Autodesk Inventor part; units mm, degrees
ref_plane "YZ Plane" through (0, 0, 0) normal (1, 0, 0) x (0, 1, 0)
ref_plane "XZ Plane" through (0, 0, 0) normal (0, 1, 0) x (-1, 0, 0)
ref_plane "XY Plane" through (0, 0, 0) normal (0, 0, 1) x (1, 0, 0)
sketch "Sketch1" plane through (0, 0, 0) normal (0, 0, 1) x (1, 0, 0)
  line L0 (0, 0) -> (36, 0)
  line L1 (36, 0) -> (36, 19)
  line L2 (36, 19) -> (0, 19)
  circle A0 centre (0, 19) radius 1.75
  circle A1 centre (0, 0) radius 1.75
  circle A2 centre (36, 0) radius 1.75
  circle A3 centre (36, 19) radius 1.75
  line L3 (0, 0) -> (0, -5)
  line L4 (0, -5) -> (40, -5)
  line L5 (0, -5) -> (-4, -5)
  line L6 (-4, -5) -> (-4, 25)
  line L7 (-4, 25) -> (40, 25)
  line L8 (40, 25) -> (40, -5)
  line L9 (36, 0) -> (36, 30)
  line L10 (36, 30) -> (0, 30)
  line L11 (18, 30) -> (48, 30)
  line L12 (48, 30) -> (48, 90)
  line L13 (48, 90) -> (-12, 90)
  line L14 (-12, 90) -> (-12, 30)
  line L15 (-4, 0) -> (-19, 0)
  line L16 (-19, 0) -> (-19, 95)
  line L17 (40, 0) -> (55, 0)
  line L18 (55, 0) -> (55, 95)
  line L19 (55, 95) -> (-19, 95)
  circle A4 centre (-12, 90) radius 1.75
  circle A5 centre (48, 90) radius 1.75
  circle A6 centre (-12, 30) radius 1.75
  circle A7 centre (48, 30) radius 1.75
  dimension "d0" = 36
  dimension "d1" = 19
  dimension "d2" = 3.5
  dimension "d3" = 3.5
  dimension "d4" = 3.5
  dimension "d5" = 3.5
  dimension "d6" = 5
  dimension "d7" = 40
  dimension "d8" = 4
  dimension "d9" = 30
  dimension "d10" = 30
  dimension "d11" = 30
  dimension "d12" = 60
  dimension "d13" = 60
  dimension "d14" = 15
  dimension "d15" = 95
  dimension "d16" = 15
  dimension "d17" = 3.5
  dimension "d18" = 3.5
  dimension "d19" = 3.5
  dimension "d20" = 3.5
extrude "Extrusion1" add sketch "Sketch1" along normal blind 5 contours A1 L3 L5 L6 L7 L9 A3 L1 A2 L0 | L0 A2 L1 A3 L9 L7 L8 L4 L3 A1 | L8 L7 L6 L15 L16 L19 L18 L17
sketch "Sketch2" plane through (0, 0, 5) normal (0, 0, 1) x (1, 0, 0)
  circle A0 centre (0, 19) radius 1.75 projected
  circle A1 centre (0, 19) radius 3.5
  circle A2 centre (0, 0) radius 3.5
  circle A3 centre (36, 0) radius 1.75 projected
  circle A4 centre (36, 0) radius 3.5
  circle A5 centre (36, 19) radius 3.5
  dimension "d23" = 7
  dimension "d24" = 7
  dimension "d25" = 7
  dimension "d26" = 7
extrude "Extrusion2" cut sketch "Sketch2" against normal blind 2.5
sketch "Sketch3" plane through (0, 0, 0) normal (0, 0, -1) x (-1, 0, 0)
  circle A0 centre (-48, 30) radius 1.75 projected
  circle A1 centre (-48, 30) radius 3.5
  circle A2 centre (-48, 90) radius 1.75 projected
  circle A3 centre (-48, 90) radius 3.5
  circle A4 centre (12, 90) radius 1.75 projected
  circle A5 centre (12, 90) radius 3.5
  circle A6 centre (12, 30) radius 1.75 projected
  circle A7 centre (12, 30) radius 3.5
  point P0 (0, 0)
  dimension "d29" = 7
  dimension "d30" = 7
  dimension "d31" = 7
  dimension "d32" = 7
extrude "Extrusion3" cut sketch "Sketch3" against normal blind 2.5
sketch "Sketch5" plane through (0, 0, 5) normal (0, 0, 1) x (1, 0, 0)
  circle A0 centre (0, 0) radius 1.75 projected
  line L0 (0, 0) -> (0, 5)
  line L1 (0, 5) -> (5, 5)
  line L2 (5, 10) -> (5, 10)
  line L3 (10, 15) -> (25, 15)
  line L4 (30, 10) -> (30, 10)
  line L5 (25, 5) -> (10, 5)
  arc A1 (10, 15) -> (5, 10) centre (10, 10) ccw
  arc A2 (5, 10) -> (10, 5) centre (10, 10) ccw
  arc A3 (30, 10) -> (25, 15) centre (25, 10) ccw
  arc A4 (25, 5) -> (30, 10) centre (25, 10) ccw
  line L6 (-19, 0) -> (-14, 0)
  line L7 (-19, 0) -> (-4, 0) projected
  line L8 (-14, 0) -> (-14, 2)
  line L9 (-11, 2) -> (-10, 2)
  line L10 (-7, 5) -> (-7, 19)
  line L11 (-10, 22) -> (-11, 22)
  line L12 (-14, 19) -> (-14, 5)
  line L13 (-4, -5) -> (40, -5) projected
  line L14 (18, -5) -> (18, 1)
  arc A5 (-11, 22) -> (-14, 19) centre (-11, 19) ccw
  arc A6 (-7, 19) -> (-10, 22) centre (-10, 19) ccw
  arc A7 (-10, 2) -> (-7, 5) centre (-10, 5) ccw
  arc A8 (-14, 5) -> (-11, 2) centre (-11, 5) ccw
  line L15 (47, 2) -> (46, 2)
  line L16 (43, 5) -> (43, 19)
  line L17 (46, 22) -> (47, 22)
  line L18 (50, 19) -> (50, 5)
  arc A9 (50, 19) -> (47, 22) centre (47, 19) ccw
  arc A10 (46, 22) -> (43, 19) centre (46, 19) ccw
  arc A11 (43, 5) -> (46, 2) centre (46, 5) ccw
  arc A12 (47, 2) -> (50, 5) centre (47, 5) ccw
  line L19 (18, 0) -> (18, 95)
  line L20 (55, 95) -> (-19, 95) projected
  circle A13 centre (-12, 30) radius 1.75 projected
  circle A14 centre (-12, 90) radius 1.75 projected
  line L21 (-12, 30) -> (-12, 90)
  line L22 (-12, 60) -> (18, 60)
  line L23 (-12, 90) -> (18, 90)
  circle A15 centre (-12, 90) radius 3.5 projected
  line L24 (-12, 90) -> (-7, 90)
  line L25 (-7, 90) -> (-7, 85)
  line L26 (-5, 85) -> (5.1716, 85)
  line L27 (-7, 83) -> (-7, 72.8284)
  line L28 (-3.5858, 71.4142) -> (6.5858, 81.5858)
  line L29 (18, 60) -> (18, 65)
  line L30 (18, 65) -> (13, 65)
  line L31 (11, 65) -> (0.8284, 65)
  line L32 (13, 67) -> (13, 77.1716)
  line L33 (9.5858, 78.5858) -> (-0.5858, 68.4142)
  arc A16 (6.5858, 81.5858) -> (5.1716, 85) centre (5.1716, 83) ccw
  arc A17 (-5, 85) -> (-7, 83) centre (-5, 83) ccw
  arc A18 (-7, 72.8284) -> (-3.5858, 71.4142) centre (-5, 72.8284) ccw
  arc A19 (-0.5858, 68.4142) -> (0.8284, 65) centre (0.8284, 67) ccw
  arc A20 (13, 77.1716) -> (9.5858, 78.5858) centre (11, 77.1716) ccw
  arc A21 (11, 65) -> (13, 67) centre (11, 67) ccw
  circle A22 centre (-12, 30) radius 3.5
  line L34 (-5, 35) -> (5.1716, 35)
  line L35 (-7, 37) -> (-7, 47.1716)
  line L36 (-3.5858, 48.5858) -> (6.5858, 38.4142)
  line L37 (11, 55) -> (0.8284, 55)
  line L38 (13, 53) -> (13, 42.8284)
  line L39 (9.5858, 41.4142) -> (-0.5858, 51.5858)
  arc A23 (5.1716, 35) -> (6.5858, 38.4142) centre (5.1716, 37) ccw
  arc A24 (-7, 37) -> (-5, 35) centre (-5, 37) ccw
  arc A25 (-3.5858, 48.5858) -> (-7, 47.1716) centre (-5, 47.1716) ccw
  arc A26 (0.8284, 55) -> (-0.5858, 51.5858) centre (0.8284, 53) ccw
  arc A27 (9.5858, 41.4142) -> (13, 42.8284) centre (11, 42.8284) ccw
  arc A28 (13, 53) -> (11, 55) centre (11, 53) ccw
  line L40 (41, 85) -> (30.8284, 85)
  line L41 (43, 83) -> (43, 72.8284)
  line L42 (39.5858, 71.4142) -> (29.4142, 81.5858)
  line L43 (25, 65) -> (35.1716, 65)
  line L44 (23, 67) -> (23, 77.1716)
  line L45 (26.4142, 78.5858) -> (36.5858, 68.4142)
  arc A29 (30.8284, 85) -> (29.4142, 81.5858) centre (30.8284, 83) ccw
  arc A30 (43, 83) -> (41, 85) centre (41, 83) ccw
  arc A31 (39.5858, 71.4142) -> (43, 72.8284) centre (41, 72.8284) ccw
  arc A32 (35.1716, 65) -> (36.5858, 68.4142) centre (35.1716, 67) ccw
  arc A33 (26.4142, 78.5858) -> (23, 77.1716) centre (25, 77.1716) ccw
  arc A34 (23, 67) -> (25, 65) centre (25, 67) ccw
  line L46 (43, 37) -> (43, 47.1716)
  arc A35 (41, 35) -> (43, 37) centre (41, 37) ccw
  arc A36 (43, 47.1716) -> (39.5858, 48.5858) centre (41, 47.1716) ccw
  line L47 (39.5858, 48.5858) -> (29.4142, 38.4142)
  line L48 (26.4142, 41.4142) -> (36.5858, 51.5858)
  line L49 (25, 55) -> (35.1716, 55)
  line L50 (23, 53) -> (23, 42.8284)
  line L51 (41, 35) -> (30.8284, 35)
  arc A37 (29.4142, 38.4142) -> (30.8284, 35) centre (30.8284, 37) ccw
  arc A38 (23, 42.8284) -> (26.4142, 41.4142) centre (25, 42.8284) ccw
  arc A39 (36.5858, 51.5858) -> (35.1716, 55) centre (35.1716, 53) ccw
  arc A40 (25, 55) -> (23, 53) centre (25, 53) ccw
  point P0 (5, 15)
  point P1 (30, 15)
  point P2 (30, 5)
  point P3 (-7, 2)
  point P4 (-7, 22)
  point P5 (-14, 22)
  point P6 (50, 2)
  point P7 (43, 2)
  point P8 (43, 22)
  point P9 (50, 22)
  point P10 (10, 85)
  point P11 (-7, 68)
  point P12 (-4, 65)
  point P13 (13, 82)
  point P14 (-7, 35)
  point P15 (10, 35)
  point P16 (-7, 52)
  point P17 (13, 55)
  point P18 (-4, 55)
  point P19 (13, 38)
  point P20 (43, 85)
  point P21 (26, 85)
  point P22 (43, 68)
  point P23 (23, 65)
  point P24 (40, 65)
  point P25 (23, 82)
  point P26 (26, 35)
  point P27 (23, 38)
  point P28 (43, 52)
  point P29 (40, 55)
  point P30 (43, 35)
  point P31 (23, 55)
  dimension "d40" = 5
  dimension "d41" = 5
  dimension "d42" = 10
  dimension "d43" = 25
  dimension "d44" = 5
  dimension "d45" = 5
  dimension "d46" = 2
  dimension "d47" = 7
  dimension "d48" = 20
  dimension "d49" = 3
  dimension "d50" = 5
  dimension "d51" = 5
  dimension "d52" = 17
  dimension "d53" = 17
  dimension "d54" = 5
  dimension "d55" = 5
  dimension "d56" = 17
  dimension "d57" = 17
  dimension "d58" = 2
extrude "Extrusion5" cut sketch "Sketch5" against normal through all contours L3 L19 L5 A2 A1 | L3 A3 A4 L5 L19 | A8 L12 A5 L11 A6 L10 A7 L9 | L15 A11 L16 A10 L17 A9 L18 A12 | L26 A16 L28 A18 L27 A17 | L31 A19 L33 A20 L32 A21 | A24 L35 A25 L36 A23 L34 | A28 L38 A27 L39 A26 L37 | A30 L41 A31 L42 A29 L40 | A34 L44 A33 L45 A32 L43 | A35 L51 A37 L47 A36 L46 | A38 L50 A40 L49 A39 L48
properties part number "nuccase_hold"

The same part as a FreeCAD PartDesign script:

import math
import FreeCAD as App
import Part
import Sketcher

V = App.Vector


def add_polygon(sketch, points):
    """Adds a closed chain of lines whose ends are joined by coincident constraints."""
    first, n = sketch.GeometryCount, len(points)
    for a, b in zip(points, points[1:] + points[:1]):
        sketch.addGeometry(Part.LineSegment(App.Vector(*a, 0), App.Vector(*b, 0)), False)
    for i in range(n):
        sketch.addConstraint(Sketcher.Constraint("Coincident", first + i, 2, first + (i + 1) % n, 1))

doc = App.newDocument("Part")
body = doc.addObject("PartDesign::Body", "Body")

# Sketch on XY plane
sketch1 = body.newObject("Sketcher::SketchObject", "Sketch")
sketch1.AttachmentSupport = (doc.getObject("XY_Plane"), [""])
sketch1.MapMode = "FlatFace"
add_polygon(sketch1, [(-4, -5), (40, -5), (40, 0), (55, 0), (55, 95), (-19, 95), (-19, 0), (-4, 0)])  # lines 0-7
sketch1.addGeometry(Part.Circle(V(0, 0, 0), V(0, 0, 1), 1.75), False)  # 8
sketch1.addGeometry(Part.Circle(V(36, 19, 0), V(0, 0, 1), 1.75), False)  # 9
sketch1.addGeometry(Part.Circle(V(36, 0, 0), V(0, 0, 1), 1.75), False)  # 10
sketch1.addGeometry(Part.Circle(V(0, 19, 0), V(0, 0, 1), 1.75), False)  # 11
sketch1.addGeometry(Part.Circle(V(-12, 30, 0), V(0, 0, 1), 1.75), False)  # 12
sketch1.addGeometry(Part.ArcOfCircle(Part.Circle(V(48, 30, 0), V(0, 0, 1), 1.75), math.radians(90), math.radians(180)), False)  # 13
sketch1.addGeometry(Part.ArcOfCircle(Part.Circle(V(48, 30, 0), V(0, 0, 1), 1.75), math.radians(180), math.radians(450)), False)  # 14
sketch1.addGeometry(Part.ArcOfCircle(Part.Circle(V(-12, 90, 0), V(0, 0, 1), 1.75), math.radians(0), math.radians(270)), False)  # 15
sketch1.addGeometry(Part.ArcOfCircle(Part.Circle(V(-12, 90, 0), V(0, 0, 1), 1.75), math.radians(-90), math.radians(0)), False)  # 16
sketch1.addGeometry(Part.ArcOfCircle(Part.Circle(V(48, 90, 0), V(0, 0, 1), 1.75), math.radians(180), math.radians(270)), False)  # 17
sketch1.addGeometry(Part.ArcOfCircle(Part.Circle(V(48, 90, 0), V(0, 0, 1), 1.75), math.radians(-90), math.radians(180)), False)  # 18
sketch1.addConstraint([
    Sketcher.Constraint("Tangent", 13, 1, 14, 2),
    Sketcher.Constraint("Coincident", 14, 1, 13, 2),
    Sketcher.Constraint("Tangent", 15, 1, 16, 2),
    Sketcher.Constraint("Coincident", 16, 1, 15, 2),
    Sketcher.Constraint("Tangent", 17, 1, 18, 2),
    Sketcher.Constraint("Coincident", 18, 1, 17, 2),
    Sketcher.Constraint("Horizontal", 0),
    Sketcher.Constraint("Vertical", 1),
    Sketcher.Constraint("Horizontal", 2),
    Sketcher.Constraint("Vertical", 3),
    Sketcher.Constraint("Horizontal", 4),
    Sketcher.Constraint("Vertical", 5),
    Sketcher.Constraint("Horizontal", 6),
    Sketcher.Constraint("Vertical", 7),
    Sketcher.Constraint("Coincident", 8, 3, -1, 1),
    Sketcher.Constraint("Equal", 8, 9),
    Sketcher.Constraint("Equal", 9, 10),
    Sketcher.Constraint("Equal", 10, 11),
    Sketcher.Constraint("Equal", 11, 12),
    Sketcher.Constraint("Equal", 12, 13),
    Sketcher.Constraint("Equal", 14, 15),
    Sketcher.Constraint("Equal", 16, 17),
    Sketcher.Constraint("PointOnObject", 10, 3, -1),
    Sketcher.Constraint("PointOnObject", 11, 3, -2),
    Sketcher.Constraint("PointOnObject", 1, 2, -1),
    Sketcher.Constraint("PointOnObject", 5, 2, -1),
    Sketcher.Constraint("Horizontal", 9, 3, 11, 3),
    Sketcher.Constraint("Horizontal", 12, 3, 13, 3),
    Sketcher.Constraint("Horizontal", 16, 3, 17, 3),
    Sketcher.Constraint("Horizontal", 13, 3, 14, 1),
    Sketcher.Constraint("Horizontal", 18, 3, 15, 1),
    Sketcher.Constraint("Horizontal", 15, 1, 17, 1),
    Sketcher.Constraint("Vertical", 9, 3, 10, 3),
    Sketcher.Constraint("Vertical", 12, 3, 15, 3),
    Sketcher.Constraint("Vertical", 14, 3, 17, 3),
    Sketcher.Constraint("Vertical", 18, 3, 13, 1),
    Sketcher.Constraint("Vertical", 15, 3, 16, 1),
    Sketcher.Constraint("Vertical", 13, 1, 18, 1),
    Sketcher.Constraint("Equal", 2, 6),
    Sketcher.Constraint("Diameter", 8, 3.5),
    Sketcher.Constraint("DistanceX", 2, 1, 2, 2, 15.0),
    Sketcher.Constraint("DistanceY", 1, 1, 1, 2, 5.0),
    Sketcher.Constraint("DistanceY", 3, 1, 3, 2, 95.0),
    Sketcher.Constraint("DistanceX", -1, 1, 9, 3, 36.0),
    Sketcher.Constraint("DistanceY", -1, 1, 9, 3, 19.0),
    Sketcher.Constraint("DistanceY", -1, 1, 12, 3, 30.0),
    Sketcher.Constraint("DistanceX", -1, 1, 0, 2, 40.0),
    Sketcher.Constraint("DistanceX", 4, 2, -1, 1, 19.0),
    Sketcher.Constraint("DistanceX", 12, 3, 13, 3, 60.0),
    Sketcher.Constraint("DistanceY", 12, 3, 15, 3, 60.0),
    Sketcher.Constraint("DistanceX", 12, 3, -1, 1, 12.0),
])
pad1 = body.newObject("PartDesign::Pad", "Pad")
pad1.Profile = sketch1
pad1.Length = 5

# Sketch on XY plane
sketch2 = body.newObject("Sketcher::SketchObject", "Sketch001")
sketch2.AttachmentSupport = (doc.getObject("XY_Plane"), [""])
sketch2.MapMode = "FlatFace"
sketch2.AttachmentOffset = App.Placement(V(0, 0, 5), App.Rotation())
sketch2.addGeometry([
    Part.Circle(V(0, 19, 0), V(0, 0, 1), 3.5),  # 0
    Part.Circle(V(0, 19, 0), V(0, 0, 1), 1.75),  # 1
    Part.Circle(V(0, 0, 0), V(0, 0, 1), 3.5),  # 2
    Part.Circle(V(36, 0, 0), V(0, 0, 1), 3.5),  # 3
    Part.Circle(V(36, 0, 0), V(0, 0, 1), 1.75),  # 4
    Part.Circle(V(36, 19, 0), V(0, 0, 1), 3.5),  # 5
], False)
sketch2.addConstraint([
    Sketcher.Constraint("Coincident", 2, 3, -1, 1),
    Sketcher.Constraint("Coincident", 1, 3, 0, 3),
    Sketcher.Constraint("Coincident", 4, 3, 3, 3),
    Sketcher.Constraint("Equal", 0, 2),
    Sketcher.Constraint("Equal", 2, 3),
    Sketcher.Constraint("Equal", 1, 4),
    Sketcher.Constraint("Equal", 3, 5),
    Sketcher.Constraint("PointOnObject", 0, 3, -2),
    Sketcher.Constraint("PointOnObject", 3, 3, -1),
    Sketcher.Constraint("Horizontal", 1, 3, 5, 3),
    Sketcher.Constraint("Vertical", 4, 3, 5, 3),
    Sketcher.Constraint("Diameter", 0, 7.0),
    Sketcher.Constraint("Diameter", 1, 3.5),
    Sketcher.Constraint("DistanceY", -1, 1, 0, 3, 19.0),
    Sketcher.Constraint("DistanceX", -1, 1, 3, 3, 36.0),
])
pocket1 = body.newObject("PartDesign::Pocket", "Pocket")
pocket1.Profile = sketch2
pocket1.Length = 2.5

# Sketch on XY plane
sketch3 = body.newObject("Sketcher::SketchObject", "Sketch002")
sketch3.AttachmentSupport = (doc.getObject("XY_Plane"), [""])
sketch3.MapMode = "FlatFace"
sketch3.addGeometry([
    Part.Circle(V(48, 30, 0), V(0, 0, 1), 3.5),  # 0
    Part.Circle(V(48, 30, 0), V(0, 0, 1), 1.75),  # 1
    Part.Circle(V(48, 90, 0), V(0, 0, 1), 3.5),  # 2
    Part.Circle(V(48, 90, 0), V(0, 0, 1), 1.75),  # 3
    Part.Circle(V(-12, 90, 0), V(0, 0, 1), 3.5),  # 4
    Part.Circle(V(-12, 90, 0), V(0, 0, 1), 1.75),  # 5
    Part.Circle(V(-12, 30, 0), V(0, 0, 1), 3.5),  # 6
    Part.Circle(V(-12, 30, 0), V(0, 0, 1), 1.75),  # 7
], False)
sketch3.addConstraint([
    Sketcher.Constraint("Coincident", 1, 3, 0, 3),
    Sketcher.Constraint("Coincident", 3, 3, 2, 3),
    Sketcher.Constraint("Coincident", 5, 3, 4, 3),
    Sketcher.Constraint("Coincident", 7, 3, 6, 3),
    Sketcher.Constraint("Equal", 0, 2),
    Sketcher.Constraint("Equal", 1, 3),
    Sketcher.Constraint("Equal", 2, 4),
    Sketcher.Constraint("Equal", 3, 5),
    Sketcher.Constraint("Equal", 4, 6),
    Sketcher.Constraint("Equal", 5, 7),
    Sketcher.Constraint("Horizontal", 3, 3, 4, 3),
    Sketcher.Constraint("Horizontal", 1, 3, 6, 3),
    Sketcher.Constraint("Vertical", 1, 3, 2, 3),
    Sketcher.Constraint("Vertical", 5, 3, 6, 3),
    Sketcher.Constraint("Diameter", 0, 7.0),
    Sketcher.Constraint("Diameter", 1, 3.5),
    Sketcher.Constraint("DistanceX", -1, 1, 0, 3, 48.0),
    Sketcher.Constraint("DistanceY", -1, 1, 0, 3, 30.0),
    Sketcher.Constraint("DistanceY", -1, 1, 2, 3, 90.0),
    Sketcher.Constraint("DistanceX", 4, 3, -1, 1, 12.0),
])
pocket2 = body.newObject("PartDesign::Pocket", "Pocket001")
pocket2.Profile = sketch3
pocket2.Length = 2.5
pocket2.Reversed = True

# Sketch on XY plane
sketch4 = body.newObject("Sketcher::SketchObject", "Sketch003")
sketch4.AttachmentSupport = (doc.getObject("XY_Plane"), [""])
sketch4.MapMode = "FlatFace"
sketch4.AttachmentOffset = App.Placement(V(0, 0, 5), App.Rotation())
sketch4.addGeometry([
    Part.ArcOfCircle(Part.Circle(V(10, 10, 0), V(0, 0, 1), 5), math.radians(90), math.radians(270)),  # 0
    Part.LineSegment(V(10, 5, 0), V(25, 5, 0)),  # 1
    Part.ArcOfCircle(Part.Circle(V(25, 10, 0), V(0, 0, 1), 5), math.radians(-90), math.radians(90)),  # 2
    Part.LineSegment(V(25, 15, 0), V(10, 15, 0)),  # 3
    Part.ArcOfCircle(Part.Circle(V(-11, 5, 0), V(0, 0, 1), 3), math.radians(180), math.radians(270)),  # 4
    Part.LineSegment(V(-11, 2, 0), V(-10, 2, 0)),  # 5
    Part.ArcOfCircle(Part.Circle(V(-10, 5, 0), V(0, 0, 1), 3), math.radians(-90), math.radians(0)),  # 6
    Part.LineSegment(V(-7, 5, 0), V(-7, 19, 0)),  # 7
    Part.ArcOfCircle(Part.Circle(V(-10, 19, 0), V(0, 0, 1), 3), math.radians(0), math.radians(90)),  # 8
    Part.LineSegment(V(-10, 22, 0), V(-11, 22, 0)),  # 9
    Part.ArcOfCircle(Part.Circle(V(-11, 19, 0), V(0, 0, 1), 3), math.radians(90), math.radians(180)),  # 10
    Part.LineSegment(V(-14, 19, 0), V(-14, 5, 0)),  # 11
    Part.LineSegment(V(46, 2, 0), V(47, 2, 0)),  # 12
    Part.ArcOfCircle(Part.Circle(V(47, 5, 0), V(0, 0, 1), 3), math.radians(-90), math.radians(0)),  # 13
    Part.LineSegment(V(50, 5, 0), V(50, 19, 0)),  # 14
    Part.ArcOfCircle(Part.Circle(V(47, 19, 0), V(0, 0, 1), 3), math.radians(0), math.radians(90)),  # 15
    Part.LineSegment(V(47, 22, 0), V(46, 22, 0)),  # 16
    Part.ArcOfCircle(Part.Circle(V(46, 19, 0), V(0, 0, 1), 3), math.radians(90), math.radians(180)),  # 17
    Part.LineSegment(V(43, 19, 0), V(43, 5, 0)),  # 18
    Part.ArcOfCircle(Part.Circle(V(46, 5, 0), V(0, 0, 1), 3), math.radians(180), math.radians(270)),  # 19
    Part.LineSegment(V(5.1716, 85, 0), V(-5, 85, 0)),  # 20
    Part.ArcOfCircle(Part.Circle(V(-5, 83, 0), V(0, 0, 1), 2), math.radians(90), math.radians(180)),  # 21
    Part.LineSegment(V(-7, 83, 0), V(-7, 72.8284, 0)),  # 22
    Part.ArcOfCircle(Part.Circle(V(-5, 72.8284, 0), V(0, 0, 1), 2), math.radians(180), math.radians(315)),  # 23
    Part.LineSegment(V(-3.5858, 71.4142, 0), V(6.5858, 81.5858, 0)),  # 24
    Part.ArcOfCircle(Part.Circle(V(5.1716, 83, 0), V(0, 0, 1), 1.999981), math.radians(-45), math.radians(90)),  # 25
    Part.LineSegment(V(0.8284, 65, 0), V(11, 65, 0)),  # 26
    Part.ArcOfCircle(Part.Circle(V(11, 67, 0), V(0, 0, 1), 2), math.radians(-90), math.radians(0)),  # 27
    Part.LineSegment(V(13, 67, 0), V(13, 77.1716, 0)),  # 28
    Part.ArcOfCircle(Part.Circle(V(11, 77.1716, 0), V(0, 0, 1), 2), math.radians(0), math.radians(135)),  # 29
    Part.LineSegment(V(9.5858, 78.5858, 0), V(-0.5858, 68.4142, 0)),  # 30
    Part.ArcOfCircle(Part.Circle(V(0.8284, 67, 0), V(0, 0, 1), 1.999981), math.radians(135), math.radians(270)),  # 31
    Part.ArcOfCircle(Part.Circle(V(-5, 37, 0), V(0, 0, 1), 2), math.radians(180), math.radians(270)),  # 32
    Part.LineSegment(V(-5, 35, 0), V(5.1716, 35, 0)),  # 33
    Part.ArcOfCircle(Part.Circle(V(5.1716, 37, 0), V(0, 0, 1), 2), math.radians(-90), math.radians(45)),  # 34
    Part.LineSegment(V(6.5858, 38.4142, 0), V(-3.5858, 48.5858, 0)),  # 35
    Part.ArcOfCircle(Part.Circle(V(-5, 47.1716, 0), V(0, 0, 1), 1.999981), math.radians(45), math.radians(180)),  # 36
    Part.LineSegment(V(-7, 47.1716, 0), V(-7, 37, 0)),  # 37
    Part.ArcOfCircle(Part.Circle(V(11, 53, 0), V(0, 0, 1), 2), math.radians(0), math.radians(90)),  # 38
    Part.LineSegment(V(11, 55, 0), V(0.8284, 55, 0)),  # 39
    Part.ArcOfCircle(Part.Circle(V(0.8284, 53, 0), V(0, 0, 1), 2), math.radians(90), math.radians(225)),  # 40
    Part.LineSegment(V(-0.5858, 51.5858, 0), V(9.5858, 41.4142, 0)),  # 41
    Part.ArcOfCircle(Part.Circle(V(11, 42.8284, 0), V(0, 0, 1), 1.999981), math.radians(-135), math.radians(0)),  # 42
    Part.LineSegment(V(13, 42.8284, 0), V(13, 53, 0)),  # 43
    Part.ArcOfCircle(Part.Circle(V(41, 83, 0), V(0, 0, 1), 2), math.radians(0), math.radians(90)),  # 44
    Part.LineSegment(V(41, 85, 0), V(30.8284, 85, 0)),  # 45
    Part.ArcOfCircle(Part.Circle(V(30.8284, 83, 0), V(0, 0, 1), 2), math.radians(90), math.radians(225)),  # 46
    Part.LineSegment(V(29.4142, 81.5858, 0), V(39.5858, 71.4142, 0)),  # 47
    Part.ArcOfCircle(Part.Circle(V(41, 72.8284, 0), V(0, 0, 1), 1.999981), math.radians(-135), math.radians(0)),  # 48
    Part.LineSegment(V(43, 72.8284, 0), V(43, 83, 0)),  # 49
    Part.ArcOfCircle(Part.Circle(V(25, 67, 0), V(0, 0, 1), 2), math.radians(180), math.radians(270)),  # 50
    Part.LineSegment(V(25, 65, 0), V(35.1716, 65, 0)),  # 51
    Part.ArcOfCircle(Part.Circle(V(35.1716, 67, 0), V(0, 0, 1), 2), math.radians(-90), math.radians(45)),  # 52
    Part.LineSegment(V(36.5858, 68.4142, 0), V(26.4142, 78.5858, 0)),  # 53
    Part.ArcOfCircle(Part.Circle(V(25, 77.1716, 0), V(0, 0, 1), 1.999981), math.radians(45), math.radians(180)),  # 54
    Part.LineSegment(V(23, 77.1716, 0), V(23, 67, 0)),  # 55
    Part.ArcOfCircle(Part.Circle(V(41, 37, 0), V(0, 0, 1), 2), math.radians(-90), math.radians(0)),  # 56
    Part.LineSegment(V(43, 37, 0), V(43, 47.1716, 0)),  # 57
    Part.ArcOfCircle(Part.Circle(V(41, 47.1716, 0), V(0, 0, 1), 2), math.radians(0), math.radians(135)),  # 58
    Part.LineSegment(V(39.5858, 48.5858, 0), V(29.4142, 38.4142, 0)),  # 59
    Part.ArcOfCircle(Part.Circle(V(30.8284, 37, 0), V(0, 0, 1), 1.999981), math.radians(135), math.radians(270)),  # 60
    Part.LineSegment(V(30.8284, 35, 0), V(41, 35, 0)),  # 61
    Part.ArcOfCircle(Part.Circle(V(25, 42.8284, 0), V(0, 0, 1), 2), math.radians(180), math.radians(315)),  # 62
    Part.LineSegment(V(26.4142, 41.4142, 0), V(36.5858, 51.5858, 0)),  # 63
    Part.ArcOfCircle(Part.Circle(V(35.1716, 53, 0), V(0, 0, 1), 1.999981), math.radians(-45), math.radians(90)),  # 64
    Part.LineSegment(V(35.1716, 55, 0), V(25, 55, 0)),  # 65
    Part.ArcOfCircle(Part.Circle(V(25, 53, 0), V(0, 0, 1), 2), math.radians(90), math.radians(180)),  # 66
    Part.LineSegment(V(23, 53, 0), V(23, 42.8284, 0)),  # 67
], False)
sketch4.addConstraint([
    Sketcher.Constraint("Tangent", 0, 2, 1, 1),
    Sketcher.Constraint("Tangent", 1, 2, 2, 1),
    Sketcher.Constraint("Tangent", 2, 2, 3, 1),
    Sketcher.Constraint("Tangent", 3, 2, 0, 1),
    Sketcher.Constraint("Tangent", 4, 2, 5, 1),
    Sketcher.Constraint("Tangent", 5, 2, 6, 1),
    Sketcher.Constraint("Tangent", 6, 2, 7, 1),
    Sketcher.Constraint("Tangent", 7, 2, 8, 1),
    Sketcher.Constraint("Tangent", 8, 2, 9, 1),
    Sketcher.Constraint("Tangent", 9, 2, 10, 1),
    Sketcher.Constraint("Tangent", 10, 2, 11, 1),
    Sketcher.Constraint("Tangent", 11, 2, 4, 1),
    Sketcher.Constraint("Tangent", 12, 2, 13, 1),
    Sketcher.Constraint("Tangent", 13, 2, 14, 1),
    Sketcher.Constraint("Tangent", 14, 2, 15, 1),
    Sketcher.Constraint("Tangent", 15, 2, 16, 1),
    Sketcher.Constraint("Tangent", 16, 2, 17, 1),
    Sketcher.Constraint("Tangent", 17, 2, 18, 1),
    Sketcher.Constraint("Tangent", 18, 2, 19, 1),
    Sketcher.Constraint("Tangent", 19, 2, 12, 1),
    Sketcher.Constraint("Tangent", 20, 2, 21, 1),
    Sketcher.Constraint("Tangent", 21, 2, 22, 1),
    Sketcher.Constraint("Tangent", 22, 2, 23, 1),
    Sketcher.Constraint("Tangent", 23, 2, 24, 1),
    Sketcher.Constraint("Tangent", 24, 2, 25, 1),
    Sketcher.Constraint("Tangent", 25, 2, 20, 1),
    Sketcher.Constraint("Tangent", 26, 2, 27, 1),
    Sketcher.Constraint("Tangent", 27, 2, 28, 1),
    Sketcher.Constraint("Tangent", 28, 2, 29, 1),
    Sketcher.Constraint("Tangent", 29, 2, 30, 1),
    Sketcher.Constraint("Tangent", 30, 2, 31, 1),
    Sketcher.Constraint("Tangent", 31, 2, 26, 1),
    Sketcher.Constraint("Tangent", 32, 2, 33, 1),
    Sketcher.Constraint("Tangent", 33, 2, 34, 1),
    Sketcher.Constraint("Tangent", 34, 2, 35, 1),
    Sketcher.Constraint("Tangent", 35, 2, 36, 1),
    Sketcher.Constraint("Tangent", 36, 2, 37, 1),
    Sketcher.Constraint("Tangent", 37, 2, 32, 1),
    Sketcher.Constraint("Tangent", 38, 2, 39, 1),
    Sketcher.Constraint("Tangent", 39, 2, 40, 1),
    Sketcher.Constraint("Tangent", 40, 2, 41, 1),
    Sketcher.Constraint("Tangent", 41, 2, 42, 1),
    Sketcher.Constraint("Tangent", 42, 2, 43, 1),
    Sketcher.Constraint("Tangent", 43, 2, 38, 1),
    Sketcher.Constraint("Tangent", 44, 2, 45, 1),
    Sketcher.Constraint("Tangent", 45, 2, 46, 1),
    Sketcher.Constraint("Tangent", 46, 2, 47, 1),
    Sketcher.Constraint("Tangent", 47, 2, 48, 1),
    Sketcher.Constraint("Tangent", 48, 2, 49, 1),
    Sketcher.Constraint("Tangent", 49, 2, 44, 1),
    Sketcher.Constraint("Tangent", 50, 2, 51, 1),
    Sketcher.Constraint("Tangent", 51, 2, 52, 1),
    Sketcher.Constraint("Tangent", 52, 2, 53, 1),
    Sketcher.Constraint("Tangent", 53, 2, 54, 1),
    Sketcher.Constraint("Tangent", 54, 2, 55, 1),
    Sketcher.Constraint("Tangent", 55, 2, 50, 1),
    Sketcher.Constraint("Tangent", 56, 2, 57, 1),
    Sketcher.Constraint("Tangent", 57, 2, 58, 1),
    Sketcher.Constraint("Tangent", 58, 2, 59, 1),
    Sketcher.Constraint("Tangent", 59, 2, 60, 1),
    Sketcher.Constraint("Tangent", 60, 2, 61, 1),
    Sketcher.Constraint("Tangent", 61, 2, 56, 1),
    Sketcher.Constraint("Tangent", 62, 2, 63, 1),
    Sketcher.Constraint("Tangent", 63, 2, 64, 1),
    Sketcher.Constraint("Tangent", 64, 2, 65, 1),
    Sketcher.Constraint("Tangent", 65, 2, 66, 1),
    Sketcher.Constraint("Tangent", 66, 2, 67, 1),
    Sketcher.Constraint("Tangent", 67, 2, 62, 1),
    Sketcher.Constraint("Horizontal", 1),
    Sketcher.Constraint("Horizontal", 3),
    Sketcher.Constraint("Horizontal", 5),
    Sketcher.Constraint("Vertical", 7),
    Sketcher.Constraint("Horizontal", 9),
    Sketcher.Constraint("Vertical", 11),
    Sketcher.Constraint("Horizontal", 12),
    Sketcher.Constraint("Vertical", 14),
    Sketcher.Constraint("Horizontal", 16),
    Sketcher.Constraint("Vertical", 18),
    Sketcher.Constraint("Horizontal", 20),
    Sketcher.Constraint("Vertical", 22),
    Sketcher.Constraint("Horizontal", 26),
    Sketcher.Constraint("Vertical", 28),
    Sketcher.Constraint("Horizontal", 33),
    Sketcher.Constraint("Vertical", 37),
    Sketcher.Constraint("Horizontal", 39),
    Sketcher.Constraint("Vertical", 43),
    Sketcher.Constraint("Horizontal", 45),
    Sketcher.Constraint("Vertical", 49),
    Sketcher.Constraint("Horizontal", 51),
    Sketcher.Constraint("Vertical", 55),
    Sketcher.Constraint("Vertical", 57),
    Sketcher.Constraint("Horizontal", 61),
    Sketcher.Constraint("Horizontal", 65),
    Sketcher.Constraint("Vertical", 67),
    Sketcher.Constraint("Equal", 4, 6),
    Sketcher.Constraint("Equal", 6, 8),
    Sketcher.Constraint("Equal", 8, 10),
    Sketcher.Constraint("Equal", 10, 13),
    Sketcher.Constraint("Equal", 13, 15),
    Sketcher.Constraint("Equal", 15, 17),
    Sketcher.Constraint("Equal", 17, 19),
    Sketcher.Constraint("Equal", 21, 23),
    Sketcher.Constraint("Equal", 23, 25),
    Sketcher.Constraint("Equal", 25, 27),
    Sketcher.Constraint("Equal", 27, 29),
    Sketcher.Constraint("Equal", 29, 31),
    Sketcher.Constraint("Equal", 31, 32),
    Sketcher.Constraint("Equal", 32, 34),
    Sketcher.Constraint("Equal", 34, 36),
    Sketcher.Constraint("Equal", 36, 38),
    Sketcher.Constraint("Equal", 38, 40),
    Sketcher.Constraint("Equal", 40, 42),
    Sketcher.Constraint("Equal", 42, 44),
    Sketcher.Constraint("Equal", 44, 46),
    Sketcher.Constraint("Equal", 46, 48),
    Sketcher.Constraint("Equal", 48, 50),
    Sketcher.Constraint("Equal", 50, 52),
    Sketcher.Constraint("Equal", 52, 54),
    Sketcher.Constraint("Equal", 54, 56),
    Sketcher.Constraint("Equal", 56, 58),
    Sketcher.Constraint("Equal", 58, 60),
    Sketcher.Constraint("Equal", 60, 62),
    Sketcher.Constraint("Equal", 62, 64),
    Sketcher.Constraint("Equal", 64, 66),
    Sketcher.Constraint("Parallel", 24, 30),
    Sketcher.Constraint("Perpendicular", 30, 35),
    Sketcher.Constraint("Parallel", 35, 41),
    Sketcher.Constraint("Parallel", 41, 47),
    Sketcher.Constraint("Parallel", 47, 53),
    Sketcher.Constraint("Perpendicular", 53, 59),
    Sketcher.Constraint("Parallel", 59, 63),
    Sketcher.Constraint("Horizontal", 6, 3, 13, 3),
    Sketcher.Constraint("Horizontal", 10, 3, 15, 3),
    Sketcher.Constraint("Horizontal", 25, 3, 44, 3),
    Sketcher.Constraint("Horizontal", 23, 3, 48, 3),
    Sketcher.Constraint("Horizontal", 31, 3, 50, 3),
    Sketcher.Constraint("Horizontal", 29, 3, 54, 3),
    Sketcher.Constraint("Horizontal", 34, 3, 56, 3),
    Sketcher.Constraint("Horizontal", 36, 3, 58, 3),
    Sketcher.Constraint("Horizontal", 42, 3, 62, 3),
    Sketcher.Constraint("Horizontal", 40, 3, 64, 3),
    Sketcher.Constraint("Horizontal", 19, 3, 0, 2),
    Sketcher.Constraint("Horizontal", 24, 2, 46, 2),
    Sketcher.Constraint("Vertical", 23, 3, 32, 3),
    Sketcher.Constraint("Vertical", 25, 3, 34, 3),
    Sketcher.Constraint("Vertical", 29, 3, 38, 3),
    Sketcher.Constraint("Vertical", 31, 3, 40, 3),
    Sketcher.Constraint("Vertical", 2, 3, 50, 3),
    Sketcher.Constraint("Vertical", 48, 3, 56, 3),
    Sketcher.Constraint("Vertical", 54, 3, 62, 3),
    Sketcher.Constraint("Vertical", 7, 2, 21, 2),
    Sketcher.Constraint("Vertical", 18, 2, 48, 2),
    Sketcher.Constraint("Equal", 9, 12),
    Sketcher.Constraint("Equal", 20, 26),
    Sketcher.Constraint("Radius", 0, 5.0),
    Sketcher.Constraint("Radius", 4, 3.0),
    Sketcher.Constraint("Radius", 21, 2.0),
    Sketcher.Constraint("DistanceX", -1, 1, 0, 3, 10.0),
    Sketcher.Constraint("DistanceY", -1, 1, 0, 3, 10.0),
    Sketcher.Constraint("DistanceX", -1, 1, 2, 3, 25.0),
    Sketcher.Constraint("DistanceX", 6, 3, -1, 1, 10.0),
    Sketcher.Constraint("DistanceX", 5, 1, 5, 2, 1.0),
    Sketcher.Constraint("DistanceY", 7, 1, 7, 2, 14.0),
    Sketcher.Constraint("DistanceX", -1, 1, 13, 3, 47.0),
    Sketcher.Constraint("DistanceY", -1, 1, 21, 3, 83.0),
    Sketcher.Constraint("DistanceX", -1, 1, 27, 3, 11.0),
    Sketcher.Constraint("DistanceY", -1, 1, 27, 3, 67.0),
    Sketcher.Constraint("DistanceY", -1, 1, 32, 3, 37.0),
    Sketcher.Constraint("DistanceY", -1, 1, 38, 3, 53.0),
    Sketcher.Constraint("DistanceX", 20, 2, 20, 1, 10.1716),
])
pocket3 = body.newObject("PartDesign::Pocket", "Pocket002")
pocket3.Profile = sketch4
pocket3.Type = "ThroughAll"

doc.recompute()
